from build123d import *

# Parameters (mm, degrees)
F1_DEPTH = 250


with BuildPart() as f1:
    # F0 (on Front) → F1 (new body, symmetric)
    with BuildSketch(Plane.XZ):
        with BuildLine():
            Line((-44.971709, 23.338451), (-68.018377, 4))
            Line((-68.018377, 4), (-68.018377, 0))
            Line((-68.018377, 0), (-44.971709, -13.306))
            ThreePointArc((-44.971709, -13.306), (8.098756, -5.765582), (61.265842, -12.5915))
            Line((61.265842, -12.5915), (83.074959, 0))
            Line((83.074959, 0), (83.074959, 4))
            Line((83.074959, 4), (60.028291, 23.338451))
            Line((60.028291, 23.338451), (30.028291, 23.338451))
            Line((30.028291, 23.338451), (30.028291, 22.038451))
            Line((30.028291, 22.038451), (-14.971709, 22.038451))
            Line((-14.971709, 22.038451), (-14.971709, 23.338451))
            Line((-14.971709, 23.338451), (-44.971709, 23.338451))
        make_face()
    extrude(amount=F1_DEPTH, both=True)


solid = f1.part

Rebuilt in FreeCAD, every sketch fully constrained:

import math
import FreeCAD as App
import Part
import Sketcher
Q = App.Units.Quantity

doc = App.newDocument("Part")
body = doc.addObject("PartDesign::Body", "Body")

# Sketch on XZ plane
sketch1 = body.newObject("Sketcher::SketchObject", "Sketch")
sketch1.AttachmentSupport = (doc.getObject("XZ_Plane"), [""])
sketch1.MapMode = "FlatFace"
sketch1.addGeometry(Part.LineSegment(App.Vector(-45, 23.3, 0), App.Vector(-68, 4, 0)), False)
sketch1.addGeometry(Part.LineSegment(App.Vector(-68, 4, 0), App.Vector(-68, 0, 0)), False)
sketch1.addGeometry(Part.LineSegment(App.Vector(-68, 0, 0), App.Vector(-45, -13.3, 0)), False)
sketch1.addGeometry(Part.ArcOfCircle(Part.Circle(App.Vector(9.4, -205.8, 0), App.Vector(0, 0, 1), 200), math.radians(75), math.radians(106)), False)
sketch1.addGeometry(Part.LineSegment(App.Vector(61.3, -12.6, 0), App.Vector(83.1, 0, 0)), False)
sketch1.addGeometry(Part.LineSegment(App.Vector(83.1, 0, 0), App.Vector(83.1, 4, 0)), False)
sketch1.addGeometry(Part.LineSegment(App.Vector(83.1, 4, 0), App.Vector(60, 23.3, 0)), False)
sketch1.addGeometry(Part.LineSegment(App.Vector(60, 23.3, 0), App.Vector(30, 23.3, 0)), False)
sketch1.addGeometry(Part.LineSegment(App.Vector(30, 23.3, 0), App.Vector(30, 22, 0)), False)
sketch1.addGeometry(Part.LineSegment(App.Vector(30, 22, 0), App.Vector(-15, 22, 0)), False)
sketch1.addGeometry(Part.LineSegment(App.Vector(-15, 22, 0), App.Vector(-15, 23.3, 0)), False)
sketch1.addGeometry(Part.LineSegment(App.Vector(-15, 23.3, 0), App.Vector(-45, 23.3, 0)), False)
sketch1.addConstraint(Sketcher.Constraint("Coincident", 0, 2, 1, 1))
sketch1.addConstraint(Sketcher.Constraint("Coincident", 1, 2, 2, 1))
sketch1.addConstraint(Sketcher.Constraint("Coincident", 2, 2, 3, 2))
sketch1.addConstraint(Sketcher.Constraint("Coincident", 3, 1, 4, 1))
sketch1.addConstraint(Sketcher.Constraint("Coincident", 4, 2, 5, 1))
sketch1.addConstraint(Sketcher.Constraint("Coincident", 5, 2, 6, 1))
sketch1.addConstraint(Sketcher.Constraint("Coincident", 6, 2, 7, 1))
sketch1.addConstraint(Sketcher.Constraint("Coincident", 7, 2, 8, 1))
sketch1.addConstraint(Sketcher.Constraint("Coincident", 8, 2, 9, 1))
sketch1.addConstraint(Sketcher.Constraint("Coincident", 9, 2, 10, 1))
sketch1.addConstraint(Sketcher.Constraint("Coincident", 10, 2, 11, 1))
sketch1.addConstraint(Sketcher.Constraint("Coincident", 11, 2, 0, 1))
sketch1.addConstraint(Sketcher.Constraint("Vertical", 1))
sketch1.addConstraint(Sketcher.Constraint("Vertical", 5))
sketch1.addConstraint(Sketcher.Constraint("Horizontal", 7))
sketch1.addConstraint(Sketcher.Constraint("Vertical", 8))
sketch1.addConstraint(Sketcher.Constraint("Horizontal", 9))
sketch1.addConstraint(Sketcher.Constraint("Vertical", 10))
sketch1.addConstraint(Sketcher.Constraint("Horizontal", 11))
sketch1.addConstraint(Sketcher.Constraint("PointOnObject", 1, 2, -1))
sketch1.addConstraint(Sketcher.Constraint("PointOnObject", 4, 2, -1))
sketch1.addConstraint(Sketcher.Constraint("Horizontal", 0, 2, 5, 2))
sketch1.addConstraint(Sketcher.Constraint("Horizontal", 7, 2, 10, 2))
sketch1.addConstraint(Sketcher.Constraint("Vertical", 2, 2, 11, 2))
sketch1.addConstraint(Sketcher.Constraint("Equal", 7, 11))
sketch1.addConstraint(Sketcher.Constraint("Equal", 0, 6))
sketch1.addConstraint(Sketcher.Constraint("Radius", 3, 199.999999))
sketch1.addConstraint(Sketcher.Constraint("DistanceX", 7, 2, 7, 1, 30.0))
sketch1.addConstraint(Sketcher.Constraint("DistanceX", 9, 2, 9, 1, 45.0))
sketch1.addConstraint(Sketcher.Constraint("DistanceY", 1, 2, 1, 1, 4.0))
sketch1.addConstraint(Sketcher.Constraint("Angle", 0, Q("-139.999999 deg")))
sketch1.addConstraint(Sketcher.Constraint("Angle", 2, Q("-30 deg")))
sketch1.addConstraint(Sketcher.Constraint("Angle", 4, Q("30.000001 deg")))
sketch1.addConstraint(Sketcher.Constraint("DistanceY", 8, 2, 8, 1, 1.3))
sketch1.addConstraint(Sketcher.Constraint("Distance", 2, 26.612))
sketch1.addConstraint(Sketcher.Constraint("Distance", 4, 25.182999))
sketch1.addConstraint(Sketcher.Constraint("DistanceX", 2, 2, -1, 1, 44.971709))
pad1 = body.newObject("PartDesign::Pad", "Pad")
pad1.Profile = sketch1
pad1.Length = 500
pad1.Midplane = True

doc.recompute()
